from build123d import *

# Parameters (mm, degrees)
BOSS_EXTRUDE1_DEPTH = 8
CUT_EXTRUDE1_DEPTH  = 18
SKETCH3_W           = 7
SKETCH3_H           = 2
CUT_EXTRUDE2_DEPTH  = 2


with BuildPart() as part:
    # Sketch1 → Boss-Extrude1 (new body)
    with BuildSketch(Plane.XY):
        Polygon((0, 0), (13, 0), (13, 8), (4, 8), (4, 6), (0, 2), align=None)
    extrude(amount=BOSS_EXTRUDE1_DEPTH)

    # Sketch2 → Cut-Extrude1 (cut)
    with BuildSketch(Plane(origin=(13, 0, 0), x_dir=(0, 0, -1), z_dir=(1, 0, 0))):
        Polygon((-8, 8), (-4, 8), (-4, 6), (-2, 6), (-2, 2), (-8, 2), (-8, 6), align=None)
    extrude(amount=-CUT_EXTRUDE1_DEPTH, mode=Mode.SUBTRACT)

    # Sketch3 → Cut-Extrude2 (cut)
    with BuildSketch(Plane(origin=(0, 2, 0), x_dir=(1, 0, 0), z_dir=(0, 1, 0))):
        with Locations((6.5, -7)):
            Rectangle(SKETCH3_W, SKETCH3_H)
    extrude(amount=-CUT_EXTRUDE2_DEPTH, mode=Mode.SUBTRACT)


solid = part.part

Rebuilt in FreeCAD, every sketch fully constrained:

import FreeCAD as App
import Part
import Sketcher
from FreeCAD import Vector
Q = App.Units.Quantity

doc = App.newDocument("Part")
params = doc.addObject("Spreadsheet::Sheet", "Params")
for row, (alias, value) in enumerate([
    ("sketch1_width", "13 mm"),
    ("sketch1_width2", "9 mm"),
    ("sketch1_height", "8 mm"),
    ("sketch1_height2", "2 mm"),
    ("pad1_length", "8 mm"),
    ("sketch2_width", "6 mm"),
    ("sketch2_width2", "4 mm"),
    ("pocket1_length", "18 mm"),
    ("sketch3_width", "7 mm"),
    ("sketch3_height", "2 mm"),
    ("pocket2_length", "2 mm"),
], start=1):
    params.set(f"A{row}", alias)
    params.set(f"B{row}", "=" + value)
    params.setAlias(f"B{row}", alias)

body = doc.addObject("PartDesign::Body", "Body")

sketch1 = body.newObject("Sketcher::SketchObject", "Sketch")
sketch1.AttachmentSupport = (doc.getObject("XY_Plane"), [""])
sketch1.MapMode = "FlatFace"
sketch1.addGeometry([
    Part.LineSegment(Vector(0, 0, 0), Vector(13, 0, 0)),
    Part.LineSegment(Vector(13, 0, 0), Vector(13, 8, 0)),
    Part.LineSegment(Vector(13, 8, 0), Vector(4, 8, 0)),
    Part.LineSegment(Vector(4, 8, 0), Vector(4, 6, 0)),
    Part.LineSegment(Vector(4, 6, 0), Vector(0, 2, 0)),
    Part.LineSegment(Vector(0, 2, 0), Vector(0, 0, 0)),
], False)
sketch1.addConstraint([
    Sketcher.Constraint("Coincident", 0, 2, 1, 1),
    Sketcher.Constraint("Coincident", 1, 2, 2, 1),
    Sketcher.Constraint("Coincident", 2, 2, 3, 1),
    Sketcher.Constraint("Coincident", 3, 2, 4, 1),
    Sketcher.Constraint("Coincident", 4, 2, 5, 1),
    Sketcher.Constraint("Coincident", 5, 2, 0, 1),
    Sketcher.Constraint("Horizontal", 0),
    Sketcher.Constraint("Vertical", 1),
    Sketcher.Constraint("Horizontal", 2),
    Sketcher.Constraint("Vertical", 3),
    Sketcher.Constraint("Vertical", 5),
    Sketcher.Constraint("Coincident", 5, 2, -1, 1),
    Sketcher.Constraint("Equal", 3, 5),
    Sketcher.Constraint("DistanceX", 0, 1, 0, 2, Q("13 mm")),
    Sketcher.Constraint("DistanceX", 2, 2, 2, 1, Q("9 mm")),
    Sketcher.Constraint("DistanceY", 1, 1, 1, 2, Q("8 mm")),
    Sketcher.Constraint("DistanceY", 3, 2, 3, 1, Q("2 mm")),
])
sketch1.setExpression("Constraints[13]", "Params.sketch1_width")
sketch1.setExpression("Constraints[14]", "Params.sketch1_width2")
sketch1.setExpression("Constraints[15]", "Params.sketch1_height")
sketch1.setExpression("Constraints[16]", "Params.sketch1_height2")
pad1 = body.newObject("PartDesign::Pad", "Pad")
pad1.Profile = sketch1
pad1.setExpression("Length", "Params.pad1_length")

sketch2 = body.newObject("Sketcher::SketchObject", "Sketch001")
sketch2.AttachmentSupport = (doc.getObject("YZ_Plane"), [""])
sketch2.MapMode = "FlatFace"
sketch2.AttachmentOffset = App.Placement(Vector(0, 0, 13), App.Rotation())
sketch2.addGeometry([
    Part.LineSegment(Vector(8, 4, 0), Vector(8, 8, 0)),
    Part.LineSegment(Vector(8, 8, 0), Vector(2, 8, 0)),
    Part.LineSegment(Vector(2, 8, 0), Vector(2, 2, 0)),
    Part.LineSegment(Vector(2, 2, 0), Vector(6, 2, 0)),
    Part.LineSegment(Vector(6, 2, 0), Vector(6, 4, 0)),
    Part.LineSegment(Vector(6, 4, 0), Vector(8, 4, 0)),
], False)
sketch2.addConstraint([
    Sketcher.Constraint("Coincident", 0, 2, 1, 1),
    Sketcher.Constraint("Coincident", 1, 2, 2, 1),
    Sketcher.Constraint("Coincident", 2, 2, 3, 1),
    Sketcher.Constraint("Coincident", 3, 2, 4, 1),
    Sketcher.Constraint("Coincident", 4, 2, 5, 1),
    Sketcher.Constraint("Coincident", 5, 2, 0, 1),
    Sketcher.Constraint("Vertical", 0),
    Sketcher.Constraint("Horizontal", 1),
    Sketcher.Constraint("Vertical", 2),
    Sketcher.Constraint("Horizontal", 3),
    Sketcher.Constraint("Vertical", 4),
    Sketcher.Constraint("Horizontal", 5),
    Sketcher.Constraint("Equal", 3, 0),
    Sketcher.Constraint("Equal", 1, 2),
    Sketcher.Constraint("DistanceX", 1, 2, 1, 1, Q("6 mm")),
    Sketcher.Constraint("DistanceX", 3, 1, 3, 2, Q("4 mm")),
    Sketcher.Constraint("DistanceX", -1, 1, 0, 2, Q("8 mm")),
    Sketcher.Constraint("DistanceY", -1, 1, 0, 2, Q("8 mm")),
])
sketch2.setExpression("Constraints[14]", "Params.sketch2_width")
sketch2.setExpression("Constraints[15]", "Params.sketch2_width2")
pocket1 = body.newObject("PartDesign::Pocket", "Pocket")
pocket1.Profile = sketch2
pocket1.setExpression("Length", "Params.pocket1_length")

sketch3 = body.newObject("Sketcher::SketchObject", "Sketch002")
sketch3.AttachmentSupport = (doc.getObject("XZ_Plane"), [""])
sketch3.MapMode = "FlatFace"
sketch3.AttachmentOffset = App.Placement(Vector(0, 0, -2), App.Rotation())
sketch3.addGeometry([
    Part.LineSegment(Vector(3, 6, 0), Vector(3, 8, 0)),
    Part.LineSegment(Vector(3, 8, 0), Vector(10, 8, 0)),
    Part.LineSegment(Vector(10, 8, 0), Vector(10, 6, 0)),
    Part.LineSegment(Vector(10, 6, 0), Vector(3, 6, 0)),
], False)
sketch3.addConstraint([
    Sketcher.Constraint("Coincident", 0, 2, 1, 1),
    Sketcher.Constraint("Coincident", 1, 2, 2, 1),
    Sketcher.Constraint("Coincident", 2, 2, 3, 1),
    Sketcher.Constraint("Coincident", 3, 2, 0, 1),
    Sketcher.Constraint("Vertical", 0),
    Sketcher.Constraint("Horizontal", 1),
    Sketcher.Constraint("Vertical", 2),
    Sketcher.Constraint("Horizontal", 3),
    Sketcher.Constraint("DistanceX", 1, 1, 1, 2, Q("7 mm")),
    Sketcher.Constraint("DistanceY", 0, 1, 0, 2, Q("2 mm")),
    Sketcher.Constraint("DistanceX", -1, 1, 0, 2, Q("3 mm")),
    Sketcher.Constraint("DistanceY", -1, 1, 0, 2, Q("8 mm")),
])
sketch3.setExpression("Constraints[8]", "Params.sketch3_width")
sketch3.setExpression("Constraints[9]", "Params.sketch3_height")
pocket2 = body.newObject("PartDesign::Pocket", "Pocket001")
pocket2.Profile = sketch3
pocket2.setExpression("Length", "Params.pocket2_length")
pocket2.Reversed = True

doc.recompute()
